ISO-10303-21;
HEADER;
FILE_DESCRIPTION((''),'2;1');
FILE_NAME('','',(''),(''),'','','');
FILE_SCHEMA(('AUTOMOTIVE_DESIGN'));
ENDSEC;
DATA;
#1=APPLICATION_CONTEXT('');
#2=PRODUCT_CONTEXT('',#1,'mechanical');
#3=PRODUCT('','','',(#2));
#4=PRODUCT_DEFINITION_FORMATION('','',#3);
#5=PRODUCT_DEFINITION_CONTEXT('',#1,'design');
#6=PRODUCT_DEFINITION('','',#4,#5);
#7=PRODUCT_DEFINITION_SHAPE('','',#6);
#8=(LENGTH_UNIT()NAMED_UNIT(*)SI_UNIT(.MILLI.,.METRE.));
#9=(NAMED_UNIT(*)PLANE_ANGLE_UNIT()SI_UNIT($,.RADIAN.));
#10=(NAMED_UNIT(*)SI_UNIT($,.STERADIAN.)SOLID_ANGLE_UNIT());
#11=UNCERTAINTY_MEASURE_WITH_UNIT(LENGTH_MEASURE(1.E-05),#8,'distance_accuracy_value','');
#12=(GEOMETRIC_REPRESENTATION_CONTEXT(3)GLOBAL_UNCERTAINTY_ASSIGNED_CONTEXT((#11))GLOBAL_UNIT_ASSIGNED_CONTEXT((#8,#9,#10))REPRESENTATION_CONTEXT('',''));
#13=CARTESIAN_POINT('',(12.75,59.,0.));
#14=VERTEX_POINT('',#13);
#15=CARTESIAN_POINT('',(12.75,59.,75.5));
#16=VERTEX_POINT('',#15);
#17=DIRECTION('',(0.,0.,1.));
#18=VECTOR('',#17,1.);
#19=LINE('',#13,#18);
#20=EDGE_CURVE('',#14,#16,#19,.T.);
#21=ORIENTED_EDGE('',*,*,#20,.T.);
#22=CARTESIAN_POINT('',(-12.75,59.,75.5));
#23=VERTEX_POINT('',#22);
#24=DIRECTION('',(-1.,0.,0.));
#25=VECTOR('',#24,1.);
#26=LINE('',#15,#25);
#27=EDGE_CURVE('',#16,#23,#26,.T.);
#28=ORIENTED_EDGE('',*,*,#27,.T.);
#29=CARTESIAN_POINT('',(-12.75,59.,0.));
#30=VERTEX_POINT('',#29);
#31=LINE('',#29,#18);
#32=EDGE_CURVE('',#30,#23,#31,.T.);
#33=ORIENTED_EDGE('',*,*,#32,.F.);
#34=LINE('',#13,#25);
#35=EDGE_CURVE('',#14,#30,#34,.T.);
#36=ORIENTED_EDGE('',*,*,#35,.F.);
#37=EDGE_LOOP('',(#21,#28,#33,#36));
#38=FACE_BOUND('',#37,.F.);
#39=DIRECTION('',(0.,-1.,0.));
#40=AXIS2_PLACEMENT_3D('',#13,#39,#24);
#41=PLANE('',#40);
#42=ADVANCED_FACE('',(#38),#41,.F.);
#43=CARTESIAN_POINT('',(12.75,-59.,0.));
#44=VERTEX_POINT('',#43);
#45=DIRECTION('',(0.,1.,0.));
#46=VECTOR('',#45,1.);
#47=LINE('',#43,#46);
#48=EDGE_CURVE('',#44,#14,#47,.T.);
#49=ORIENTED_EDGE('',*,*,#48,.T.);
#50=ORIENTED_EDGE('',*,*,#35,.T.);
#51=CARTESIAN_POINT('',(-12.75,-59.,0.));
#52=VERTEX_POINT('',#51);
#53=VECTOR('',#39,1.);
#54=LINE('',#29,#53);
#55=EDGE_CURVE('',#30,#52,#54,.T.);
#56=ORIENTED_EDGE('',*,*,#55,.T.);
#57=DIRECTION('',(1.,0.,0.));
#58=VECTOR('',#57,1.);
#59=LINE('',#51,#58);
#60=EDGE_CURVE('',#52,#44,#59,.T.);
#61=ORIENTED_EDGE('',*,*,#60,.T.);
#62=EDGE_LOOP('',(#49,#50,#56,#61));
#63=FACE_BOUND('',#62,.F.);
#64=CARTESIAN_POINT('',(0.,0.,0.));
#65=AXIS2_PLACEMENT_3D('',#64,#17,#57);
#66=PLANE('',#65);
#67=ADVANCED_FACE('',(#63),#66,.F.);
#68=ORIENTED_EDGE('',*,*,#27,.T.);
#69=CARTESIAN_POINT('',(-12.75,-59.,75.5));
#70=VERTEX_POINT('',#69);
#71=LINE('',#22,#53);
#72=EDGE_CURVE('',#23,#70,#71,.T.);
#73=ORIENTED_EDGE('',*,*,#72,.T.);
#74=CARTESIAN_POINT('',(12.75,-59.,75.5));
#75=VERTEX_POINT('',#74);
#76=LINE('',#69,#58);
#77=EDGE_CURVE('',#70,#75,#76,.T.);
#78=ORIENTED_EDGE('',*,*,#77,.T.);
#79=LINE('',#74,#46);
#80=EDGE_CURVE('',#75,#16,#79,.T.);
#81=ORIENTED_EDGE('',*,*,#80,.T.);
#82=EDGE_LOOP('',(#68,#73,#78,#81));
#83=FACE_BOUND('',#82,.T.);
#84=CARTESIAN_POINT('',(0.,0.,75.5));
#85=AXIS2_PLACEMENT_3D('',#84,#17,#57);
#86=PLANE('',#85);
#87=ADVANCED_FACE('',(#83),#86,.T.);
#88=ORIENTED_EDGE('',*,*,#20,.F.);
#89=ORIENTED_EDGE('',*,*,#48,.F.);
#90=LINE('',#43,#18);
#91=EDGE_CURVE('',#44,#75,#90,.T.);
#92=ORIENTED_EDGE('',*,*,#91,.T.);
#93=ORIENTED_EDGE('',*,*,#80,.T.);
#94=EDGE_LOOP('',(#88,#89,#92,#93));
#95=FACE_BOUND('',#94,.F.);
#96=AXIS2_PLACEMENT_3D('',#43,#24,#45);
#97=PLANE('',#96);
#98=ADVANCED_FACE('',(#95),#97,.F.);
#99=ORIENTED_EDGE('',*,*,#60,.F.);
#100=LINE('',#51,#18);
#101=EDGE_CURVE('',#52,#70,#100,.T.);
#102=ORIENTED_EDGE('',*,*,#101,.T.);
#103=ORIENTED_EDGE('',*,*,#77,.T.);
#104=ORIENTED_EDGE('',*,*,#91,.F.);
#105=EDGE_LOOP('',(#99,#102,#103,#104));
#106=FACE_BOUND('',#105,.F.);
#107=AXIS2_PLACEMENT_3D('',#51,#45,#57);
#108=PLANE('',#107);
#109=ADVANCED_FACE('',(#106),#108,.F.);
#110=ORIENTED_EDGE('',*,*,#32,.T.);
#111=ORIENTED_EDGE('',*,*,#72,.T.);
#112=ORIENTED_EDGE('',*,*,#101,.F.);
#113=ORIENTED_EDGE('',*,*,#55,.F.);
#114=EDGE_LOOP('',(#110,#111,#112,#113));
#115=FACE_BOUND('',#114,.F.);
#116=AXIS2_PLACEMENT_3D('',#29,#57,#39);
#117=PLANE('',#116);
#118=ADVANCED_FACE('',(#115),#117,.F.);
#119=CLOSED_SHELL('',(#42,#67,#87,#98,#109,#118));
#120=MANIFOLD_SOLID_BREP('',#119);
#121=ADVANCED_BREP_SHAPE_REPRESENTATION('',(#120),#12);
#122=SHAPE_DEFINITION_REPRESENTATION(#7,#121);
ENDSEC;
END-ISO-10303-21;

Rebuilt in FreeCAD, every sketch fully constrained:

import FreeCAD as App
import Part
import Sketcher

V = App.Vector

doc = App.newDocument("Part")
body = doc.addObject("PartDesign::Body", "Body")

sketch1 = doc.addObject("Sketcher::SketchObject", "Sketch")
body.addObject(sketch1)
sketch1.AttachmentSupport = (doc.XY_Plane, [""])
sketch1.MapMode = "FlatFace"
sketch1.addGeometry(Part.LineSegment(V(-13, 59, 0), V(-13, -59, 0)), False)
sketch1.addGeometry(Part.LineSegment(V(-13, -59, 0), V(13, -59, 0)), False)
sketch1.addGeometry(Part.LineSegment(V(13, -59, 0), V(13, 59, 0)), False)
sketch1.addGeometry(Part.LineSegment(V(13, 59, 0), V(-13, 59, 0)), False)
sketch1.addConstraint(Sketcher.Constraint("Coincident", 0, 2, 1, 1))
sketch1.addConstraint(Sketcher.Constraint("Coincident", 1, 2, 2, 1))
sketch1.addConstraint(Sketcher.Constraint("Coincident", 2, 2, 3, 1))
sketch1.addConstraint(Sketcher.Constraint("Coincident", 3, 2, 0, 1))
sketch1.addConstraint(Sketcher.Constraint("Vertical", 0))
sketch1.addConstraint(Sketcher.Constraint("Horizontal", 1))
sketch1.addConstraint(Sketcher.Constraint("Vertical", 2))
sketch1.addConstraint(Sketcher.Constraint("Horizontal", 3))
sketch1.addConstraint(Sketcher.Constraint("Symmetric", 0, 2, 2, 2, -1, 1))
sketch1.addConstraint(Sketcher.Constraint("DistanceY", 0, 2, 0, 1, 118.0))
sketch1.addConstraint(Sketcher.Constraint("DistanceX", 1, 1, 1, 2, 25.5))
pad1 = doc.addObject("PartDesign::Pad", "Pad")
body.addObject(pad1)
pad1.Profile = sketch1
pad1.Length = 75.5

doc.recompute()
